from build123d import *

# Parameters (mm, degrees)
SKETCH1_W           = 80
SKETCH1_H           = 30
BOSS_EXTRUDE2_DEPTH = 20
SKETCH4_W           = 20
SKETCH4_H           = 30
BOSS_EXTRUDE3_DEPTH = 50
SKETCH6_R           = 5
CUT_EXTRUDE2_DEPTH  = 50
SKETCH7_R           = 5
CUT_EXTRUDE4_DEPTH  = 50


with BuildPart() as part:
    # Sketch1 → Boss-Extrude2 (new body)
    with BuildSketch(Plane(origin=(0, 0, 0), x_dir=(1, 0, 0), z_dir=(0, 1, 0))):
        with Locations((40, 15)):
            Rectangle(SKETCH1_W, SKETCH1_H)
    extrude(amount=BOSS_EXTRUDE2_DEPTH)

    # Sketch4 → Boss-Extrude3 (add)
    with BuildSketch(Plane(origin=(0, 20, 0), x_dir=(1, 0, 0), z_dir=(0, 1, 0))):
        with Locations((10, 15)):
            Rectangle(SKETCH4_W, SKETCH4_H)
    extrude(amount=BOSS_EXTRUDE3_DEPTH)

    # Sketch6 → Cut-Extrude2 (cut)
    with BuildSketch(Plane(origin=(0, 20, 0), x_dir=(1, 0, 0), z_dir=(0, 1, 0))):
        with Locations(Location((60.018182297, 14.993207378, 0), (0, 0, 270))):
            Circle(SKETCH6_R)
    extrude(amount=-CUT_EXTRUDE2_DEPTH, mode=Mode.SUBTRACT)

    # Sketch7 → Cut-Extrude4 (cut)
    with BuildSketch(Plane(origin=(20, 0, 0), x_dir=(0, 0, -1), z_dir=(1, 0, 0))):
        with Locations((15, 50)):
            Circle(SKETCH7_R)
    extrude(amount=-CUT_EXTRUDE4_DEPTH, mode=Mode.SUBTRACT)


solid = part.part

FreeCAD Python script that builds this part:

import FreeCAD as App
import Part
import Sketcher

V = App.Vector
Q = App.Units.Quantity

doc = App.newDocument("Part")
body = doc.addObject("PartDesign::Body", "Body")

# Sketch on XZ plane
sketch1 = doc.addObject("Sketcher::SketchObject", "Sketch")
body.addObject(sketch1)
sketch1.AttachmentSupport = (doc.XZ_Plane, [""])
sketch1.MapMode = "FlatFace"
sketch1.addGeometry(Part.LineSegment(V(0, -30, 0), V(0, 0, 0)), False)
sketch1.addGeometry(Part.LineSegment(V(0, 0, 0), V(80, 0, 0)), False)
sketch1.addGeometry(Part.LineSegment(V(80, 0, 0), V(80, -30, 0)), False)
sketch1.addGeometry(Part.LineSegment(V(80, -30, 0), V(0, -30, 0)), False)
sketch1.addConstraint(Sketcher.Constraint("Coincident", 0, 2, 1, 1))
sketch1.addConstraint(Sketcher.Constraint("Coincident", 1, 2, 2, 1))
sketch1.addConstraint(Sketcher.Constraint("Coincident", 2, 2, 3, 1))
sketch1.addConstraint(Sketcher.Constraint("Coincident", 3, 2, 0, 1))
sketch1.addConstraint(Sketcher.Constraint("Vertical", 0))
sketch1.addConstraint(Sketcher.Constraint("Horizontal", 1))
sketch1.addConstraint(Sketcher.Constraint("Vertical", 2))
sketch1.addConstraint(Sketcher.Constraint("Horizontal", 3))
sketch1.addConstraint(Sketcher.Constraint("Coincident", 0, 2, -1, 1))
sketch1.addConstraint(Sketcher.Constraint("DistanceX", 1, 1, 1, 2, Q("80 mm")))
sketch1.addConstraint(Sketcher.Constraint("DistanceY", 0, 1, 0, 2, Q("30 mm")))
pad1 = doc.addObject("PartDesign::Pad", "Pad")
body.addObject(pad1)
pad1.Profile = sketch1
pad1.Length = 20
pad1.Reversed = True

# Sketch on XZ plane
sketch2 = doc.addObject("Sketcher::SketchObject", "Sketch001")
body.addObject(sketch2)
sketch2.AttachmentSupport = (doc.XZ_Plane, [""])
sketch2.MapMode = "FlatFace"
sketch2.AttachmentOffset = App.Placement(V(0, 0, -20), App.Rotation())
sketch2.addGeometry(Part.LineSegment(V(0, -30, 0), V(0, 0, 0)), False)
sketch2.addGeometry(Part.LineSegment(V(0, 0, 0), V(20, 0, 0)), False)
sketch2.addGeometry(Part.LineSegment(V(20, 0, 0), V(20, -30, 0)), False)
sketch2.addGeometry(Part.LineSegment(V(20, -30, 0), V(0, -30, 0)), False)
sketch2.addConstraint(Sketcher.Constraint("Coincident", 0, 2, 1, 1))
sketch2.addConstraint(Sketcher.Constraint("Coincident", 1, 2, 2, 1))
sketch2.addConstraint(Sketcher.Constraint("Coincident", 2, 2, 3, 1))
sketch2.addConstraint(Sketcher.Constraint("Coincident", 3, 2, 0, 1))
sketch2.addConstraint(Sketcher.Constraint("Vertical", 0))
sketch2.addConstraint(Sketcher.Constraint("Horizontal", 1))
sketch2.addConstraint(Sketcher.Constraint("Vertical", 2))
sketch2.addConstraint(Sketcher.Constraint("Horizontal", 3))
sketch2.addConstraint(Sketcher.Constraint("Coincident", 0, 2, -1, 1))
sketch2.addConstraint(Sketcher.Constraint("DistanceX", 1, 1, 1, 2, Q("20 mm")))
sketch2.addConstraint(Sketcher.Constraint("DistanceY", 0, 1, 0, 2, Q("30 mm")))
pad2 = doc.addObject("PartDesign::Pad", "Pad001")
body.addObject(pad2)
pad2.Profile = sketch2
pad2.Length = 50
pad2.Reversed = True

# Sketch on XZ plane
sketch3 = doc.addObject("Sketcher::SketchObject", "Sketch002")
body.addObject(sketch3)
sketch3.AttachmentSupport = (doc.XZ_Plane, [""])
sketch3.MapMode = "FlatFace"
sketch3.AttachmentOffset = App.Placement(V(0, 0, -20), App.Rotation())
sketch3.addGeometry(Part.Circle(V(60, -15, 0), V(0, 0, 1), 5), False)
sketch3.addConstraint(Sketcher.Constraint("Diameter", 0, Q("10 mm")))
sketch3.addConstraint(Sketcher.Constraint("DistanceX", -1, 1, 0, 3, Q("60.018182 mm")))
sketch3.addConstraint(Sketcher.Constraint("DistanceY", 0, 3, -1, 1, Q("14.993207 mm")))
pocket1 = doc.addObject("PartDesign::Pocket", "Pocket")
body.addObject(pocket1)
pocket1.Profile = sketch3
pocket1.Length = 50
pocket1.Reversed = True

# Sketch on YZ plane
sketch4 = doc.addObject("Sketcher::SketchObject", "Sketch003")
body.addObject(sketch4)
sketch4.AttachmentSupport = (doc.YZ_Plane, [""])
sketch4.MapMode = "FlatFace"
sketch4.AttachmentOffset = App.Placement(V(0, 0, 20), App.Rotation())
sketch4.addGeometry(Part.Circle(V(50, -15, 0), V(0, 0, 1), 5), False)
sketch4.addConstraint(Sketcher.Constraint("Diameter", 0, Q("10 mm")))
sketch4.addConstraint(Sketcher.Constraint("DistanceX", -1, 1, 0, 3, Q("50 mm")))
sketch4.addConstraint(Sketcher.Constraint("DistanceY", 0, 3, -1, 1, Q("15 mm")))
pocket2 = doc.addObject("PartDesign::Pocket", "Pocket001")
body.addObject(pocket2)
pocket2.Profile = sketch4
pocket2.Length = 50

doc.recompute()
